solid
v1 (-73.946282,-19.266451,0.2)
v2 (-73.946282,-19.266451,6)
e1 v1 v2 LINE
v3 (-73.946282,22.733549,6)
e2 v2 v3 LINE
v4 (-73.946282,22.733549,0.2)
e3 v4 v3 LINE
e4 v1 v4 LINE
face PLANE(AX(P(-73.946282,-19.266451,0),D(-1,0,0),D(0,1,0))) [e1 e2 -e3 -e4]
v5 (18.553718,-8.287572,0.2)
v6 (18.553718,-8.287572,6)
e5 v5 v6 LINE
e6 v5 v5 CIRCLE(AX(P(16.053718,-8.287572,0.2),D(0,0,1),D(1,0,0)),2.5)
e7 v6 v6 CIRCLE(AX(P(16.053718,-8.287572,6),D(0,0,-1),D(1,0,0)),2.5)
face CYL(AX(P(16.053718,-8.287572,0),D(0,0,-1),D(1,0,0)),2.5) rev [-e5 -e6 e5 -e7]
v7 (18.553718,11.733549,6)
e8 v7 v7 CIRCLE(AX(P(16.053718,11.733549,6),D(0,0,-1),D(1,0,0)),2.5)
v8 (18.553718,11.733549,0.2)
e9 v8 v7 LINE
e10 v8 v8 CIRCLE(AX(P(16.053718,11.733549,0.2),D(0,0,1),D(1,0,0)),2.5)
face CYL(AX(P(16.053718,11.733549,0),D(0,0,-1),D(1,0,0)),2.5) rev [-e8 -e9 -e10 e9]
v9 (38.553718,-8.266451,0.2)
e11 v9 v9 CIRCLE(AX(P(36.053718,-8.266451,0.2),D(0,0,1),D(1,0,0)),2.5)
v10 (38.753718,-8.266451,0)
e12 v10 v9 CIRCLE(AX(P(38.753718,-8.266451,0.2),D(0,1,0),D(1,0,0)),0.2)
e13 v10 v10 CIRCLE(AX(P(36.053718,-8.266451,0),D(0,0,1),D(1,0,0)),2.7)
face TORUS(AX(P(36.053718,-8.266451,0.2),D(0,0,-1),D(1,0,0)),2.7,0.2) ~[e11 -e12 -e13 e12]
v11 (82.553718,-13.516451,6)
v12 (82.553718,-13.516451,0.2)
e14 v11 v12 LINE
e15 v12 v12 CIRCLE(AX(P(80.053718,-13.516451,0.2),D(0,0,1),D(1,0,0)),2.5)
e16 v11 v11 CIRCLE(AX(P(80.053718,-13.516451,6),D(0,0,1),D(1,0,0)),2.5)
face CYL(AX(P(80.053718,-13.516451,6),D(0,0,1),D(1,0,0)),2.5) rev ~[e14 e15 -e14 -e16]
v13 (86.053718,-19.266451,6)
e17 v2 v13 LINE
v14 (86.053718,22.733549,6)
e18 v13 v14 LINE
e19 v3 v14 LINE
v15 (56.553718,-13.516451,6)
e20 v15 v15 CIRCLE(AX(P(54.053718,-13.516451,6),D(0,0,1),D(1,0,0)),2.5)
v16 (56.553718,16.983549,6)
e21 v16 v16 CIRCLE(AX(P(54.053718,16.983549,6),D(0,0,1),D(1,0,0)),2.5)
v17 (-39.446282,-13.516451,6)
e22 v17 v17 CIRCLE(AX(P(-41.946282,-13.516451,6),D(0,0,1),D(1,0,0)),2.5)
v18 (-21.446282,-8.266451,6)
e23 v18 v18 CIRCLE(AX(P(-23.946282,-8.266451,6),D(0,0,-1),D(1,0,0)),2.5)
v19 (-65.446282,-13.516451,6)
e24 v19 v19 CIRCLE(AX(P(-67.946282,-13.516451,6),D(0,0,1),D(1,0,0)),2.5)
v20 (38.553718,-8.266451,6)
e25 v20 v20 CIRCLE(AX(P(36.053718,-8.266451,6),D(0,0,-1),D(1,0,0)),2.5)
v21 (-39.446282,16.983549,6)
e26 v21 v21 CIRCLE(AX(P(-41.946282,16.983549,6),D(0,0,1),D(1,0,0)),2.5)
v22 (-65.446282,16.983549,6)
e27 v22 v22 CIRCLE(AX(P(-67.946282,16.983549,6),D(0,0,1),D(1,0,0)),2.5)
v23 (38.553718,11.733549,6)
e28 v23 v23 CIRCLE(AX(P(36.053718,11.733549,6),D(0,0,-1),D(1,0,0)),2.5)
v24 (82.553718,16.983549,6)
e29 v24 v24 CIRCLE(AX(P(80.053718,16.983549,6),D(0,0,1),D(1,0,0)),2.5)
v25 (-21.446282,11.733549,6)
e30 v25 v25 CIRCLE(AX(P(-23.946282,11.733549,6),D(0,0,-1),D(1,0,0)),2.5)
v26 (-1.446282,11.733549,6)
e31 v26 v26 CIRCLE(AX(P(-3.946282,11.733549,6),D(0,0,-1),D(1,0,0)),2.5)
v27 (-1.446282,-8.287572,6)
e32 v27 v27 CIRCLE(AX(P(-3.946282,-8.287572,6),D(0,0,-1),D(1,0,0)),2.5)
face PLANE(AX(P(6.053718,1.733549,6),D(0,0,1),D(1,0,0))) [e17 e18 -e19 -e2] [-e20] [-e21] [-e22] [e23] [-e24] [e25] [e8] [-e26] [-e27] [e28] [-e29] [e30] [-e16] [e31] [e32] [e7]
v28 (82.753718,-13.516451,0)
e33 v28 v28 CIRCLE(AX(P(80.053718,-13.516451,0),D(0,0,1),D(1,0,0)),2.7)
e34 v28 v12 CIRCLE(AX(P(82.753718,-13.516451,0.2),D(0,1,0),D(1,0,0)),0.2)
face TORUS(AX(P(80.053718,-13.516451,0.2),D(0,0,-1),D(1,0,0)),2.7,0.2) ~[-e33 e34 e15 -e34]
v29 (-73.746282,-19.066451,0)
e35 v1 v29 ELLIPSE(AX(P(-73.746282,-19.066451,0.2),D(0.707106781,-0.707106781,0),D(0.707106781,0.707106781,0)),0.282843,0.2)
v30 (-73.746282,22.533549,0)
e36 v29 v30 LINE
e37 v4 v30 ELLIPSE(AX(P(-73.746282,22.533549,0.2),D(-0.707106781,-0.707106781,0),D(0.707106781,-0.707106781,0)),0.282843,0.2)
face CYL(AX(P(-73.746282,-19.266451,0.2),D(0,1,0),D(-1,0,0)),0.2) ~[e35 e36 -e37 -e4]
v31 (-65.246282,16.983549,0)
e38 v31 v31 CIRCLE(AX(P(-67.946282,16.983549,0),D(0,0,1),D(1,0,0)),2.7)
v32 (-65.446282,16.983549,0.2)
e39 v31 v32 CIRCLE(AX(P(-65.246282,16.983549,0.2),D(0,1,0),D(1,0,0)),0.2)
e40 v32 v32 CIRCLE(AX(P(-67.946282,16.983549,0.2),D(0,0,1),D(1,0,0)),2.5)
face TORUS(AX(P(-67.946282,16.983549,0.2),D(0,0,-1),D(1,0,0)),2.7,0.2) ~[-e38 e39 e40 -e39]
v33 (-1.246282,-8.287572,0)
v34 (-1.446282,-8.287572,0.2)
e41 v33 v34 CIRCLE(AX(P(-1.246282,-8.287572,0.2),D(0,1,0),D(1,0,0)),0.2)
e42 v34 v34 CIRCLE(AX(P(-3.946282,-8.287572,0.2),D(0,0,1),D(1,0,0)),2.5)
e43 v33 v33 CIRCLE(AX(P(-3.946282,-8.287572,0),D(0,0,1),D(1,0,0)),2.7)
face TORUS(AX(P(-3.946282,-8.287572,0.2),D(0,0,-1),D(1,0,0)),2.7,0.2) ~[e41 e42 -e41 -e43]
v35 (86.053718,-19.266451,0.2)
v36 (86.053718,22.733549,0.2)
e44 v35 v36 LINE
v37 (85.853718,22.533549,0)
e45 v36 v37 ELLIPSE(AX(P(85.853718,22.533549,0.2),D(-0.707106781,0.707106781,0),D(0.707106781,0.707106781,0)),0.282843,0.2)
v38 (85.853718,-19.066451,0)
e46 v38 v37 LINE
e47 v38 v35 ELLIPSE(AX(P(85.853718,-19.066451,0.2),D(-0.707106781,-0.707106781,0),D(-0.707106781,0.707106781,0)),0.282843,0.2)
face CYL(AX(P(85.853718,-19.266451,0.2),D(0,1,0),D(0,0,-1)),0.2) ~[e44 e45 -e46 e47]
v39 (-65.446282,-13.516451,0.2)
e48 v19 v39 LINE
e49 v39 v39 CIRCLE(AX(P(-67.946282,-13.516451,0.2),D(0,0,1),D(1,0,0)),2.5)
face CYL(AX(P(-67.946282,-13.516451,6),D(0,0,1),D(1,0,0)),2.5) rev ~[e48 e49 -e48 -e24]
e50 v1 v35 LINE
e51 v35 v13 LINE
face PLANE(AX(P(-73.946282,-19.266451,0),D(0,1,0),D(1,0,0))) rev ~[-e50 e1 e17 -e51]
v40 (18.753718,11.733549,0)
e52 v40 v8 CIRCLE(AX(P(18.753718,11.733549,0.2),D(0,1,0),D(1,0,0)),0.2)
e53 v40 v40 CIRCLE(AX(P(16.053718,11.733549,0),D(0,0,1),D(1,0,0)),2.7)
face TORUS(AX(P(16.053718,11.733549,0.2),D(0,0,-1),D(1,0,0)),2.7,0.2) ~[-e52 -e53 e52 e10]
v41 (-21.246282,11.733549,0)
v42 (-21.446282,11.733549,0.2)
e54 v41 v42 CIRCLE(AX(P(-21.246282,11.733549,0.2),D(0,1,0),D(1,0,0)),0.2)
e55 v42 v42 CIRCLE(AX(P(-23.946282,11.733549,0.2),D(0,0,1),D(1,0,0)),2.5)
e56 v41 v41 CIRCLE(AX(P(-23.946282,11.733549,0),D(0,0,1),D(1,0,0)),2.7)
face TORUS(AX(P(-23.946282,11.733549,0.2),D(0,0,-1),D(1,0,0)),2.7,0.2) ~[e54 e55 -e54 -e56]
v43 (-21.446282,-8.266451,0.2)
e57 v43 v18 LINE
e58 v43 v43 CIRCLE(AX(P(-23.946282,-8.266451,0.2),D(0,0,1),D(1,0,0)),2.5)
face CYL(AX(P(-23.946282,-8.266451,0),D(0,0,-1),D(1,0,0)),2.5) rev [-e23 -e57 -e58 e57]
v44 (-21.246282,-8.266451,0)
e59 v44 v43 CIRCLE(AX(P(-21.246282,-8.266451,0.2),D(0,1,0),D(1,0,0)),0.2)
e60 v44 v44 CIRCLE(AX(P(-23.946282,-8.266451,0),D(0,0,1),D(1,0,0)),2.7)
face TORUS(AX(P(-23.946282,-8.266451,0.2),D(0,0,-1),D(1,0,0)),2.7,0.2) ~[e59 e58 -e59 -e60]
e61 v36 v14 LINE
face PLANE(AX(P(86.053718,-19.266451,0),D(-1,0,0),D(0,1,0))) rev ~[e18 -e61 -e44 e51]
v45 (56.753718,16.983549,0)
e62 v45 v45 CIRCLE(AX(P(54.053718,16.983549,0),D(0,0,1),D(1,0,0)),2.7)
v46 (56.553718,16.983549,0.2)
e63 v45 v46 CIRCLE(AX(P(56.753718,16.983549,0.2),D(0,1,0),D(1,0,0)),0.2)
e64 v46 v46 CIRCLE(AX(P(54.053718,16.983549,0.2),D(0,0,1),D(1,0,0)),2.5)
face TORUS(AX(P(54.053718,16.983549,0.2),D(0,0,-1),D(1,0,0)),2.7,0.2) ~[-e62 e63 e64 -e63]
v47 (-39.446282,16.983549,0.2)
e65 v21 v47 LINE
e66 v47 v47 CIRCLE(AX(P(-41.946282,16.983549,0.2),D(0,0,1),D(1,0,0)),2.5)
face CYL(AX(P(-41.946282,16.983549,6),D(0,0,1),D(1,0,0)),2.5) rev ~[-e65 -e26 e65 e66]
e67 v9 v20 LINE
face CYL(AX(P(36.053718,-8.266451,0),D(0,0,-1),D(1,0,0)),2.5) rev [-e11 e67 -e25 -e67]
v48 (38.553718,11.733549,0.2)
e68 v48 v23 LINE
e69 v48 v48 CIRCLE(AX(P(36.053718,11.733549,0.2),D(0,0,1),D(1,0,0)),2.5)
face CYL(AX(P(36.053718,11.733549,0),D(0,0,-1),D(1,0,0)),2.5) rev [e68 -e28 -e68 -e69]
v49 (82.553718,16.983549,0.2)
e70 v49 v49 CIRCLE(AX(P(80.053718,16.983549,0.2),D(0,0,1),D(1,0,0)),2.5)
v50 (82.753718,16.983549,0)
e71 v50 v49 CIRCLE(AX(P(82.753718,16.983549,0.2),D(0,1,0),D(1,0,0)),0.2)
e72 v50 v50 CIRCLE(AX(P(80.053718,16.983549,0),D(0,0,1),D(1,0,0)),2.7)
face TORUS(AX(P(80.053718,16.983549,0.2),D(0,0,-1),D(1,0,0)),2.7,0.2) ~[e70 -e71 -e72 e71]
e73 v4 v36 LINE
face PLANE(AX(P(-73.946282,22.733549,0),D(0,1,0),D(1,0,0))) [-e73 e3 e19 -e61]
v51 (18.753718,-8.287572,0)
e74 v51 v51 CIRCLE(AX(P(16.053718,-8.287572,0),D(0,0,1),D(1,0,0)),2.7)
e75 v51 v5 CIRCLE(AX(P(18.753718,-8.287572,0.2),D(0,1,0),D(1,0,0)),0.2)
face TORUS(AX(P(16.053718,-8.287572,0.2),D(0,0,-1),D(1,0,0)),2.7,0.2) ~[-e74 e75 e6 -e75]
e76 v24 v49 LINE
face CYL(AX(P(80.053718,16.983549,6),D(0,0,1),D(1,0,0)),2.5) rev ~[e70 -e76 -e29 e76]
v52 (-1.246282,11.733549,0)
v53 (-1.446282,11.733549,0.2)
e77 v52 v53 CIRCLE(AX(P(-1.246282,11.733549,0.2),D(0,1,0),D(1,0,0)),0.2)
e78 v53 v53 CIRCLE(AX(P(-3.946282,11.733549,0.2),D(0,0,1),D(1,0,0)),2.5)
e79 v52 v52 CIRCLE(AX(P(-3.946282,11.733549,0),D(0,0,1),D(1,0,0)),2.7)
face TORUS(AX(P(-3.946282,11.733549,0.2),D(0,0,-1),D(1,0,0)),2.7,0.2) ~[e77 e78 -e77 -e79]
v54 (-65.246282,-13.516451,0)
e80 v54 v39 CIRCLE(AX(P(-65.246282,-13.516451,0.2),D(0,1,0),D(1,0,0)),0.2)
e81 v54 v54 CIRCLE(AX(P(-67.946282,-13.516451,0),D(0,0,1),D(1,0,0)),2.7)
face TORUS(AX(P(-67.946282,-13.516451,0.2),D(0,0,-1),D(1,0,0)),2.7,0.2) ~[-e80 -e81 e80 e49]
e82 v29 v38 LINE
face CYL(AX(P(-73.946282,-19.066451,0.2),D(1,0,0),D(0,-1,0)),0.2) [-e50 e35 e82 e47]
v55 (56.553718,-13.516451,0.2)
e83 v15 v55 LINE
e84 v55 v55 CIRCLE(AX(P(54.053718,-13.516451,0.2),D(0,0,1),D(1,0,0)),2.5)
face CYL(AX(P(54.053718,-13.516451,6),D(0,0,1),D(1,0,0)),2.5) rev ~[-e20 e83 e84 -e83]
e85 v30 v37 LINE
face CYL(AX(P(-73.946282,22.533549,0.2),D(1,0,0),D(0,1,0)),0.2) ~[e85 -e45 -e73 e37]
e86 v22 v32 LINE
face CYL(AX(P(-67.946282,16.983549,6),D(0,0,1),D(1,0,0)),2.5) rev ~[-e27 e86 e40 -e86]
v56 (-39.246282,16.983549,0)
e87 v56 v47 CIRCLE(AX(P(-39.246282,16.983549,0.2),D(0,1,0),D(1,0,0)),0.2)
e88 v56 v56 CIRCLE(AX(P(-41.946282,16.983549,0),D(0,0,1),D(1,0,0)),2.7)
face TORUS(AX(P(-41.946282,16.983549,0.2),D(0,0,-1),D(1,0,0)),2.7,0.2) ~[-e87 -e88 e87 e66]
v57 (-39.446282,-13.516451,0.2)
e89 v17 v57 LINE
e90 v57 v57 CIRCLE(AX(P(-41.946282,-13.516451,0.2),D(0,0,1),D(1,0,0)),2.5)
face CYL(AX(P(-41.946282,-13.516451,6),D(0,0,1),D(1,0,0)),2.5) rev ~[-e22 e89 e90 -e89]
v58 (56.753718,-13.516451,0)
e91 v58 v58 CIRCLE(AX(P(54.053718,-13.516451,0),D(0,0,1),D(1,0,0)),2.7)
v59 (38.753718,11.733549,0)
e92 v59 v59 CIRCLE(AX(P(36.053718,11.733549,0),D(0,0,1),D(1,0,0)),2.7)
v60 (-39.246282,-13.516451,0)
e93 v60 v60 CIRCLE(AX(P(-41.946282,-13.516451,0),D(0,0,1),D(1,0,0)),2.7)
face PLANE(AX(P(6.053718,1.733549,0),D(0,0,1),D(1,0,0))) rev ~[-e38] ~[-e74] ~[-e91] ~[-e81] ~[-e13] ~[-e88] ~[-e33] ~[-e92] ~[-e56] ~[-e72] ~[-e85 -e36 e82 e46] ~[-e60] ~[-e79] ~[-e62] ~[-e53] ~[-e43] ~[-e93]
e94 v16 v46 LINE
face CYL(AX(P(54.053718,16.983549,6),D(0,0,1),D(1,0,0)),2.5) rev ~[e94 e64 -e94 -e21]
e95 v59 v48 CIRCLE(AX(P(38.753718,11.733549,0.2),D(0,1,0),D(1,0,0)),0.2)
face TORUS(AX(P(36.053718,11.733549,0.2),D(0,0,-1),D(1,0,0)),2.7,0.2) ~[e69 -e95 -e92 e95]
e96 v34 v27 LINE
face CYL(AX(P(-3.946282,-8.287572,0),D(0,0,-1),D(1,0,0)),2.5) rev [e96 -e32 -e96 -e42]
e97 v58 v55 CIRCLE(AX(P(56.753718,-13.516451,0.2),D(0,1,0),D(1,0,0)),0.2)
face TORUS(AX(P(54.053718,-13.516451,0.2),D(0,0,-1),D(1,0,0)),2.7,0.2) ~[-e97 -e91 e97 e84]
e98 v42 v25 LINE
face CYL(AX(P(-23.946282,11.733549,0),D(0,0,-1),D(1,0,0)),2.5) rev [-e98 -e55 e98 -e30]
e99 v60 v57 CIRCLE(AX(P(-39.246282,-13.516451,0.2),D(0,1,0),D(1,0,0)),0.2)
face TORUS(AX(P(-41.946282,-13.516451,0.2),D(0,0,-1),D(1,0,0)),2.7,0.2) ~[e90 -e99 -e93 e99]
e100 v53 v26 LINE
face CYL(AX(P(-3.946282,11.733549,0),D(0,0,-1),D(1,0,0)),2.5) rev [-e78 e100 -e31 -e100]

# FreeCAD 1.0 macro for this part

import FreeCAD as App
import Part
import Sketcher
from FreeCAD import Vector


def edges_at(feature, points):
    """Names of the edges that pass closest to the given points."""
    edges = feature.Shape.Edges
    near = lambda p: min(range(len(edges)), key=lambda i: edges[i].distToShape(Part.Vertex(*p))[0])
    return sorted({f"Edge{near(p) + 1}" for p in points})


def add_polygon(sketch, points):
    """Adds a closed chain of lines whose ends are joined by coincident constraints."""
    first, n = sketch.GeometryCount, len(points)
    for a, b in zip(points, points[1:] + points[:1]):
        sketch.addGeometry(Part.LineSegment(App.Vector(*a, 0), App.Vector(*b, 0)), False)
    for i in range(n):
        sketch.addConstraint(Sketcher.Constraint("Coincident", first + i, 2, first + (i + 1) % n, 1))

doc = App.newDocument("Part")
body = doc.addObject("PartDesign::Body", "Body")

# Sketch on XY plane
sketch1 = body.newObject("Sketcher::SketchObject", "Sketch")
sketch1.AttachmentSupport = (doc.getObject("XY_Plane"), [""])
sketch1.MapMode = "FlatFace"
add_polygon(sketch1, [(-74, 23), (-74, -19), (86, -19), (86, 23)])  # lines 0-3
sketch1.addConstraint(Sketcher.Constraint("Vertical", 0))
sketch1.addConstraint(Sketcher.Constraint("Horizontal", 1))
sketch1.addConstraint(Sketcher.Constraint("Vertical", 2))
sketch1.addConstraint(Sketcher.Constraint("Horizontal", 3))
sketch1.addConstraint(Sketcher.Constraint("DistanceX", 1, 1, 1, 2, 160.0))
sketch1.addConstraint(Sketcher.Constraint("DistanceY", 0, 2, 0, 1, 42.0))
sketch1.addConstraint(Sketcher.Constraint("DistanceX", 0, 2, -1, 1, 73.946282))
sketch1.addConstraint(Sketcher.Constraint("DistanceY", 0, 2, -1, 1, 19.266451))
pad1 = body.newObject("PartDesign::Pad", "Pad")
pad1.Profile = sketch1
pad1.Length = 6

# Sketch on XY plane
sketch2 = body.newObject("Sketcher::SketchObject", "Sketch001")
sketch2.AttachmentSupport = (doc.getObject("XY_Plane"), [""])
sketch2.MapMode = "FlatFace"
sketch2.AttachmentOffset = App.Placement(Vector(0, 0, 6), App.Rotation())
sketch2.addGeometry(Part.Circle(Vector(-67.9, 17, 0), Vector(0, 0, 1), 2.5), False)
sketch2.addGeometry(Part.Circle(Vector(-41.9, 17, 0), Vector(0, 0, 1), 2.5), False)
sketch2.addGeometry(Part.Circle(Vector(54.1, 17, 0), Vector(0, 0, 1), 2.5), False)
sketch2.addGeometry(Part.Circle(Vector(80.1, 17, 0), Vector(0, 0, 1), 2.5), False)
sketch2.addGeometry(Part.Circle(Vector(80.1, -13.5, 0), Vector(0, 0, 1), 2.5), False)
sketch2.addGeometry(Part.Circle(Vector(54.1, -13.5, 0), Vector(0, 0, 1), 2.5), False)
sketch2.addGeometry(Part.Circle(Vector(-41.9, -13.5, 0), Vector(0, 0, 1), 2.5), False)
sketch2.addGeometry(Part.Circle(Vector(-67.9, -13.5, 0), Vector(0, 0, 1), 2.5), False)
sketch2.addConstraint(Sketcher.Constraint("Equal", 0, 1))
sketch2.addConstraint(Sketcher.Constraint("Equal", 1, 2))
sketch2.addConstraint(Sketcher.Constraint("Equal", 2, 3))
sketch2.addConstraint(Sketcher.Constraint("Equal", 3, 4))
sketch2.addConstraint(Sketcher.Constraint("Equal", 4, 5))
sketch2.addConstraint(Sketcher.Constraint("Equal", 5, 6))
sketch2.addConstraint(Sketcher.Constraint("Equal", 6, 7))
sketch2.addConstraint(Sketcher.Constraint("Horizontal", 0, 3, 1, 3))
sketch2.addConstraint(Sketcher.Constraint("Horizontal", 1, 3, 2, 3))
sketch2.addConstraint(Sketcher.Constraint("Horizontal", 2, 3, 3, 3))
sketch2.addConstraint(Sketcher.Constraint("Horizontal", 4, 3, 5, 3))
sketch2.addConstraint(Sketcher.Constraint("Horizontal", 5, 3, 6, 3))
sketch2.addConstraint(Sketcher.Constraint("Horizontal", 6, 3, 7, 3))
sketch2.addConstraint(Sketcher.Constraint("Vertical", 3, 3, 4, 3))
sketch2.addConstraint(Sketcher.Constraint("Vertical", 2, 3, 5, 3))
sketch2.addConstraint(Sketcher.Constraint("Vertical", 1, 3, 6, 3))
sketch2.addConstraint(Sketcher.Constraint("Vertical", 0, 3, 7, 3))
sketch2.addConstraint(Sketcher.Constraint("Diameter", 0, 5.0))
sketch2.addConstraint(Sketcher.Constraint("DistanceX", 0, 3, 1, 3, 26.0))
sketch2.addConstraint(Sketcher.Constraint("DistanceX", 1, 3, 2, 3, 96.0))
sketch2.addConstraint(Sketcher.Constraint("DistanceX", 2, 3, 3, 3, 26.0))
sketch2.addConstraint(Sketcher.Constraint("DistanceY", 4, 3, 3, 3, 30.5))
sketch2.addConstraint(Sketcher.Constraint("DistanceX", 0, 3, -1, 1, 67.946282))
sketch2.addConstraint(Sketcher.Constraint("DistanceY", -1, 1, 0, 3, 16.983549))
pocket1 = body.newObject("PartDesign::Pocket", "Pocket")
pocket1.Profile = sketch2
pocket1.Type = "ThroughAll"

# Sketch on XY plane
sketch3 = body.newObject("Sketcher::SketchObject", "Sketch002")
sketch3.AttachmentSupport = (doc.getObject("XY_Plane"), [""])
sketch3.MapMode = "FlatFace"
sketch3.addGeometry(Part.Circle(Vector(-23.9, -8.3, 0), Vector(0, 0, 1), 2.5), False)
sketch3.addGeometry(Part.Circle(Vector(-23.9, 11.7, 0), Vector(0, 0, 1), 2.5), False)
sketch3.addGeometry(Part.Circle(Vector(-3.9, 11.7, 0), Vector(0, 0, 1), 2.5), False)
sketch3.addGeometry(Part.Circle(Vector(-3.9, -8.3, 0), Vector(0, 0, 1), 2.5), False)
sketch3.addGeometry(Part.Circle(Vector(16.1, -8.3, 0), Vector(0, 0, 1), 2.5), False)
sketch3.addGeometry(Part.Circle(Vector(16.1, 11.7, 0), Vector(0, 0, 1), 2.5), False)
sketch3.addGeometry(Part.Circle(Vector(36.1, 11.7, 0), Vector(0, 0, 1), 2.5), False)
sketch3.addGeometry(Part.Circle(Vector(36.1, -8.3, 0), Vector(0, 0, 1), 2.5), False)
sketch3.addConstraint(Sketcher.Constraint("Equal", 0, 1))
sketch3.addConstraint(Sketcher.Constraint("Equal", 1, 2))
sketch3.addConstraint(Sketcher.Constraint("Equal", 2, 3))
sketch3.addConstraint(Sketcher.Constraint("Equal", 3, 4))
sketch3.addConstraint(Sketcher.Constraint("Equal", 4, 5))
sketch3.addConstraint(Sketcher.Constraint("Equal", 5, 6))
sketch3.addConstraint(Sketcher.Constraint("Equal", 6, 7))
sketch3.addConstraint(Sketcher.Constraint("Horizontal", 1, 3, 2, 3))
sketch3.addConstraint(Sketcher.Constraint("Horizontal", 3, 3, 4, 3))
sketch3.addConstraint(Sketcher.Constraint("Horizontal", 2, 3, 5, 3))
sketch3.addConstraint(Sketcher.Constraint("Horizontal", 5, 3, 6, 3))
sketch3.addConstraint(Sketcher.Constraint("Horizontal", 0, 3, 7, 3))
sketch3.addConstraint(Sketcher.Constraint("Vertical", 0, 3, 1, 3))
sketch3.addConstraint(Sketcher.Constraint("Vertical", 2, 3, 3, 3))
sketch3.addConstraint(Sketcher.Constraint("Vertical", 4, 3, 5, 3))
sketch3.addConstraint(Sketcher.Constraint("Vertical", 6, 3, 7, 3))
sketch3.addConstraint(Sketcher.Constraint("Diameter", 0, 5.0))
sketch3.addConstraint(Sketcher.Constraint("DistanceY", 0, 3, 1, 3, 20.0))
sketch3.addConstraint(Sketcher.Constraint("DistanceX", 1, 3, 2, 3, 20.0))
sketch3.addConstraint(Sketcher.Constraint("DistanceX", 3, 3, 4, 3, 20.0))
sketch3.addConstraint(Sketcher.Constraint("DistanceX", 5, 3, 6, 3, 20.0))
sketch3.addConstraint(Sketcher.Constraint("DistanceX", 0, 3, -1, 1, 23.946282))
sketch3.addConstraint(Sketcher.Constraint("DistanceY", 0, 3, -1, 1, 8.266451))
sketch3.addConstraint(Sketcher.Constraint("DistanceY", 3, 3, 0, 3, 0.021121))
pocket2 = body.newObject("PartDesign::Pocket", "Pocket001")
pocket2.Profile = sketch3
pocket2.Type = "ThroughAll"
pocket2.Reversed = True
doc.recompute()

fillet = body.newObject("PartDesign::Fillet", "Fillet")
fillet.Base = (pocket2, edges_at(pocket2, [
    (6.054, 22.734, 0),
    (86.054, 1.734, 0),
    (6.054, -19.266, 0),
    (-73.946, 1.734, 0),
    (-70.446, -13.516, 0),
    (-44.446, -13.516, 0),
    (-26.446, -8.266, 0),
    (-6.446, -8.288, 0),
    (13.554, -8.288, 0),
    (33.554, -8.266, 0),
    (51.554, -13.516, 0),
    (77.554, -13.516, 0),
    (-70.446, 16.984, 0),
    (-44.446, 16.984, 0),
    (-26.446, 11.734, 0),
    (-6.446, 11.734, 0),
    (13.554, 11.734, 0),
    (33.554, 11.734, 0),
    (51.554, 16.984, 0),
    (77.554, 16.984, 0),
]))
fillet.Radius = 0.2

doc.recompute()
